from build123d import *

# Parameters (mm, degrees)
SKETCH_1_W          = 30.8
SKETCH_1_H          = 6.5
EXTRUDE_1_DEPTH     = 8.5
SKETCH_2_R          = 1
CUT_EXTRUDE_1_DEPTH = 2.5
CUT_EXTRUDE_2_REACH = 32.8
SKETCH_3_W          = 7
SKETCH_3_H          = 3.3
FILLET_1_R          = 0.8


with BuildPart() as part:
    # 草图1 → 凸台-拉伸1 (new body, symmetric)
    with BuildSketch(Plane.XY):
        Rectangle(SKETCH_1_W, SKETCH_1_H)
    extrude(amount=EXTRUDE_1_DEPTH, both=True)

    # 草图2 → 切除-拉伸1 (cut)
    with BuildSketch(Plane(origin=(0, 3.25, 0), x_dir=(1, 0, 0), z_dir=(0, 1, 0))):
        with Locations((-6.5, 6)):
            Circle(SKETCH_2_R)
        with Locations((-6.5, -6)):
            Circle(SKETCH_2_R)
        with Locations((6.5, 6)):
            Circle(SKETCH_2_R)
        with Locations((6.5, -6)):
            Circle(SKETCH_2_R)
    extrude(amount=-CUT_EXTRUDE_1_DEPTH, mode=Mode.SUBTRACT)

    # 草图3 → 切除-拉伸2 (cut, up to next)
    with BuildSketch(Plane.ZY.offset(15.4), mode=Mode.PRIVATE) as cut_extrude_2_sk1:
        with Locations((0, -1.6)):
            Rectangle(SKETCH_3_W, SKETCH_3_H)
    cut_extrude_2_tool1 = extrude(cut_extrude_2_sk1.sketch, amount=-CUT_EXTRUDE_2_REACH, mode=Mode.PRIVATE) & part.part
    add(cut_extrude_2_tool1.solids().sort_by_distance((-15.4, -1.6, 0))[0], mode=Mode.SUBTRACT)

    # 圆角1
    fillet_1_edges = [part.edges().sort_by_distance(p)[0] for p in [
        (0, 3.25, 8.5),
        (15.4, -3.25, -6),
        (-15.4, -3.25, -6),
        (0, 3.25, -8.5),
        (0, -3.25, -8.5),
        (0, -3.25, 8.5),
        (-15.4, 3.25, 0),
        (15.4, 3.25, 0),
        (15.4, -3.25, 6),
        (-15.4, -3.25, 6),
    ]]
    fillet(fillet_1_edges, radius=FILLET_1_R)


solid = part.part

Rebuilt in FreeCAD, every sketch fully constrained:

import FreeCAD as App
import Part
import Sketcher

V = App.Vector
Q = App.Units.Quantity


def edges_at(feature, points):
    """Names of the edges that pass closest to the given points."""
    edges = feature.Shape.Edges
    near = lambda p: min(range(len(edges)), key=lambda i: edges[i].distToShape(Part.Vertex(*p))[0])
    return sorted({f"Edge{near(p) + 1}" for p in points})


def add_polygon(sketch, points):
    """Adds a closed chain of lines whose ends are joined by coincident constraints."""
    first, n = sketch.GeometryCount, len(points)
    for a, b in zip(points, points[1:] + points[:1]):
        sketch.addGeometry(Part.LineSegment(App.Vector(*a, 0), App.Vector(*b, 0)), False)
    for i in range(n):
        sketch.addConstraint(Sketcher.Constraint("Coincident", first + i, 2, first + (i + 1) % n, 1))

doc = App.newDocument("Part")
body = doc.addObject("PartDesign::Body", "Body")

# Sketch on XY plane
sketch1 = body.newObject("Sketcher::SketchObject", "Sketch")
sketch1.AttachmentSupport = (doc.getObject("XY_Plane"), [""])
sketch1.MapMode = "FlatFace"
add_polygon(sketch1, [(-15, 3), (-15, -3), (15, -3), (15, 3)])  # lines 0-3
sketch1.addConstraint([
    Sketcher.Constraint("Vertical", 0),
    Sketcher.Constraint("Horizontal", 1),
    Sketcher.Constraint("Vertical", 2),
    Sketcher.Constraint("Horizontal", 3),
    Sketcher.Constraint("Symmetric", 0, 2, 2, 2, -1, 1),
    Sketcher.Constraint("DistanceX", 1, 1, 1, 2, Q("30.8 mm")),
    Sketcher.Constraint("DistanceY", 0, 2, 0, 1, Q("6.5 mm")),
])
pad1 = body.newObject("PartDesign::Pad", "Pad")
pad1.Profile = sketch1
pad1.Length = 17
pad1.Midplane = True

# Sketch on XZ plane
sketch2 = body.newObject("Sketcher::SketchObject", "Sketch001")
sketch2.AttachmentSupport = (doc.getObject("XZ_Plane"), [""])
sketch2.MapMode = "FlatFace"
sketch2.AttachmentOffset = App.Placement(V(0, 0, -3.25), App.Rotation())
sketch2.addGeometry([
    Part.Circle(V(-6.5, -6, 0), V(0, 0, 1), 1),
    Part.Circle(V(-6.5, 6, 0), V(0, 0, 1), 1),
    Part.Circle(V(6.5, -6, 0), V(0, 0, 1), 1),
    Part.Circle(V(6.5, 6, 0), V(0, 0, 1), 1),
], False)
sketch2.addConstraint([
    Sketcher.Constraint("Equal", 0, 1),
    Sketcher.Constraint("Equal", 1, 2),
    Sketcher.Constraint("Equal", 2, 3),
    Sketcher.Constraint("Symmetric", 1, 3, 2, 3, -1, 1),
    Sketcher.Constraint("Symmetric", 0, 3, 3, 3, -1, 1),
    Sketcher.Constraint("Symmetric", 0, 3, 2, 3, -2),
    Sketcher.Constraint("Diameter", 0, Q("2 mm")),
    Sketcher.Constraint("DistanceY", 0, 3, -1, 1, Q("6 mm")),
    Sketcher.Constraint("DistanceX", 0, 3, 2, 3, Q("13 mm")),
])
pocket1 = body.newObject("PartDesign::Pocket", "Pocket")
pocket1.Profile = sketch2
pocket1.Length = 2.5
pocket1.Reversed = True

# Sketch on YZ plane
sketch3 = body.newObject("Sketcher::SketchObject", "Sketch002")
sketch3.AttachmentSupport = (doc.getObject("YZ_Plane"), [""])
sketch3.MapMode = "FlatFace"
sketch3.AttachmentOffset = App.Placement(V(0, 0, -15.4), App.Rotation())
add_polygon(sketch3, [(0.1, -3.5), (-3.2, -3.5), (-3.2, 3.5), (0.1, 3.5)])  # lines 0-3
sketch3.addConstraint([
    Sketcher.Constraint("Horizontal", 0),
    Sketcher.Constraint("Vertical", 1),
    Sketcher.Constraint("Horizontal", 2),
    Sketcher.Constraint("Vertical", 3),
    Sketcher.Constraint("DistanceY", 1, 1, 1, 2, Q("7 mm")),
    Sketcher.Constraint("DistanceX", 0, 2, 0, 1, Q("3.3 mm")),
    Sketcher.Constraint("DistanceY", 0, 2, -1, 1, Q("3.5 mm")),
    Sketcher.Constraint("DistanceX", 0, 2, -1, 1, Q("3.25 mm")),
])
pocket2 = body.newObject("PartDesign::Pocket", "Pocket001")
pocket2.Profile = sketch3
pocket2.Type = "UpToFirst"
pocket2.Reversed = True
doc.recompute()

fillet = body.newObject("PartDesign::Fillet", "Fillet")
fillet.Base = (pocket2, edges_at(pocket2, [
    (0, 3.25, 8.5),
    (15.4, -3.25, -6),
    (-15.4, -3.25, -6),
    (0, 3.25, -8.5),
    (0, -3.25, -8.5),
    (0, -3.25, 8.5),
    (-15.4, 3.25, 0),
    (15.4, 3.25, 0),
    (15.4, -3.25, 6),
    (-15.4, -3.25, 6),
]))
fillet.Radius = 0.8

doc.recompute()
